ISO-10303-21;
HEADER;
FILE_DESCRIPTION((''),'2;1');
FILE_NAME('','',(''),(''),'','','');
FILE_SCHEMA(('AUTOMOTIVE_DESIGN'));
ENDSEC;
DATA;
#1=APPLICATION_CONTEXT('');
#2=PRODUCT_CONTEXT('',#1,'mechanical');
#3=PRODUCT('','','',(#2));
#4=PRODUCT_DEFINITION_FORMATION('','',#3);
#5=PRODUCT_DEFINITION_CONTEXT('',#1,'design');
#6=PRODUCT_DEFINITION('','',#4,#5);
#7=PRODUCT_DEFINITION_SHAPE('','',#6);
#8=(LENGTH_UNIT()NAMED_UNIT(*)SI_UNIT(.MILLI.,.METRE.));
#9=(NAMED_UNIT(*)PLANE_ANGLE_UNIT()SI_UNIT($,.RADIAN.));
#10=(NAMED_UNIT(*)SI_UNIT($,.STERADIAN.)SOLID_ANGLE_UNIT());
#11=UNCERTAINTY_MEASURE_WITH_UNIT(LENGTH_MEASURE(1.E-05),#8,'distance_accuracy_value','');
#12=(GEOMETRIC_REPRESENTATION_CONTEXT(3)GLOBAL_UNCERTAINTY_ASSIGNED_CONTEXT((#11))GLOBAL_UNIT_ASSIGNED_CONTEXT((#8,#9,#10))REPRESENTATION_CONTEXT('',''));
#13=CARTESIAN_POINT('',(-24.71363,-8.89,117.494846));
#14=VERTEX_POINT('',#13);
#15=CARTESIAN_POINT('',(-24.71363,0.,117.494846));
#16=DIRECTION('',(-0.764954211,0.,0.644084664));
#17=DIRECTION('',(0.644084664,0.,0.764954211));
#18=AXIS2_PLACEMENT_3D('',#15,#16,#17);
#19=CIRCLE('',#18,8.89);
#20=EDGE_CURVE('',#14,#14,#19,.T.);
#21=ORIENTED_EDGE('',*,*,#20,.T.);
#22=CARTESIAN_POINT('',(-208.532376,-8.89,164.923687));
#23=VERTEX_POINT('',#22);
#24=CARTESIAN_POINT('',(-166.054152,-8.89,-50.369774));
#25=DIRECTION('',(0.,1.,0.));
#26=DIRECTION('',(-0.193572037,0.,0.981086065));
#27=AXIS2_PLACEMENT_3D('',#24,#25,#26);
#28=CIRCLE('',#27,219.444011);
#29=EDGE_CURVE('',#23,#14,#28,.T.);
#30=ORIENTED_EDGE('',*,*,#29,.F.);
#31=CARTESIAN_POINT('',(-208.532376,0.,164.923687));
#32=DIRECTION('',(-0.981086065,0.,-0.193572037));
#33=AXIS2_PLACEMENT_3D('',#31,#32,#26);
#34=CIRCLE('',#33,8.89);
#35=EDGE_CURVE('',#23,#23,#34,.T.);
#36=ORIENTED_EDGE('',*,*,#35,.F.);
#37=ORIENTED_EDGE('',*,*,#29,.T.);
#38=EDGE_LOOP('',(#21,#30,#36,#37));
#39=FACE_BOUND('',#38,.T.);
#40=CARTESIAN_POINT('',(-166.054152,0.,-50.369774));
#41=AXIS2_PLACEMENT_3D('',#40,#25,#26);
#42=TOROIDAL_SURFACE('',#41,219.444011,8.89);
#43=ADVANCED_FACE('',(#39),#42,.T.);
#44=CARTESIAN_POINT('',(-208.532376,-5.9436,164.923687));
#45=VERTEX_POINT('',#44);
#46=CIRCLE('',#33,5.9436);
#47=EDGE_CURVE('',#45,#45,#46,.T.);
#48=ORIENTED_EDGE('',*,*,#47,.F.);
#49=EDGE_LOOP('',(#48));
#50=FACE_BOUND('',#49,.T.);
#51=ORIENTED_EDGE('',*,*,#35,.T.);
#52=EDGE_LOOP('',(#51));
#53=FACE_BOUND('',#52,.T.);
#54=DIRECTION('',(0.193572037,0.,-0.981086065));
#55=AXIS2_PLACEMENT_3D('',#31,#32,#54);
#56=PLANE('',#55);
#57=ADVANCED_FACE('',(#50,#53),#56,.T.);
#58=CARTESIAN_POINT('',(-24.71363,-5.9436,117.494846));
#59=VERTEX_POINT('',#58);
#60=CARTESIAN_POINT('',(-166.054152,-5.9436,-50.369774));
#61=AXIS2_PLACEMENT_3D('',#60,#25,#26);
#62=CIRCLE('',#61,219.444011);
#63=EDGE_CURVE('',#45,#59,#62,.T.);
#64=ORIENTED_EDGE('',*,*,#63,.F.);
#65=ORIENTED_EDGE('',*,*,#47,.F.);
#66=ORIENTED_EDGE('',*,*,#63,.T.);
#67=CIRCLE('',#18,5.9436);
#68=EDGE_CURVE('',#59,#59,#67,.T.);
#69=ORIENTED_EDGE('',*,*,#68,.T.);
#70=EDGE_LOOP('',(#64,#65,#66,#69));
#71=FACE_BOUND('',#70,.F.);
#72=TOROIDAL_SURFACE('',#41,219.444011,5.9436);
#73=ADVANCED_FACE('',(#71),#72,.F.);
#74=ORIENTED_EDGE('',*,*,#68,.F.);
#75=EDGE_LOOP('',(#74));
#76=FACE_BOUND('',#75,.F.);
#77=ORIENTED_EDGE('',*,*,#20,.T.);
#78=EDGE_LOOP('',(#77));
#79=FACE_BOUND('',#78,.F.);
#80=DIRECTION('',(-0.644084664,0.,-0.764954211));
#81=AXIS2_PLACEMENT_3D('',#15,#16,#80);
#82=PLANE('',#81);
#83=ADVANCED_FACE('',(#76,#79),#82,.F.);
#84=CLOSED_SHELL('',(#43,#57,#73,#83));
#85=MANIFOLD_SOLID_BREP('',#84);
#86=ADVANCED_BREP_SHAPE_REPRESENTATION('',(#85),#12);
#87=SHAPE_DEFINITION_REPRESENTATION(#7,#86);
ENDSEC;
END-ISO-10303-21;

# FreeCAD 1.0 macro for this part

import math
import FreeCAD as App
import Part
import Sketcher

V = App.Vector
Q = App.Units.Quantity

doc = App.newDocument("Part")
params = doc.addObject("Spreadsheet::Sheet", "Params")
for row, (alias, value) in enumerate([
    ("sketch1_diameter", "0.7 in"),
    ("sketch1_diameter2", "0.468 in"),
], start=1):
    params.set(f"A{row}", alias)
    params.set(f"B{row}", "=" + value)
    params.setAlias(f"B{row}", alias)

body = doc.addObject("PartDesign::Body", "Body")

sketch1 = body.newObject("Sketcher::SketchObject", "Sketch")
sketch1.Placement = App.Placement(V(-169.397843, 0, -33.422845), App.Rotation(V(0, -1, 0), V(-0.193572014, 0, 0.981086069), V(-0.981086069, 0, -0.193572014), "ZXY"))
sketch1.addGeometry([
    Part.Circle(V(0, 202.17037, 0), V(0, 0, 1), 8.89),
    Part.Circle(V(0, 202.17037, 0), V(0, 0, 1), 5.9436),
], False)
sketch1.addConstraint([
    Sketcher.Constraint("Coincident", 1, 3, 0, 3),
    Sketcher.Constraint("PointOnObject", 0, 3, -2),
    Sketcher.Constraint("Diameter", 0, Q("0.7 in")),
    Sketcher.Constraint("Diameter", 1, Q("0.468 in")),
    Sketcher.Constraint("DistanceY", -1, 1, 0, 3, 202.17037),
])
sketch1.setExpression("Constraints[2]", "Params.sketch1_diameter")
sketch1.setExpression("Constraints[3]", "Params.sketch1_diameter2")

sketch2 = body.newObject("Sketcher::SketchObject", "Sketch001")
sketch2.AttachmentSupport = (doc.getObject("XZ_Plane"), [""])
sketch2.MapMode = "FlatFace"
sketch2.addGeometry(Part.ArcOfCircle(Part.Circle(V(-166.054152, -50.369774, 0), V(0, 0, 1), 219.444012), math.radians(49.902919), math.radians(101.161318)), False)
sketch2.addConstraint([
    Sketcher.Constraint("Radius", 0, 219.444012),
    Sketcher.Constraint("DistanceX", 0, 3, -1, 1, 166.054152),
    Sketcher.Constraint("DistanceX", 0, 1, -1, 1, 24.713629),
    Sketcher.Constraint("DistanceY", -1, 1, 0, 2, 164.923688),
    Sketcher.Constraint("DistanceY", 0, 1, 0, 2, 47.428841),
])
doc.recompute()

additivepipe = body.newObject("PartDesign::AdditivePipe", "AdditivePipe")
additivepipe.Profile = sketch1
additivepipe.Spine = (sketch2, ["Edge1"])

doc.recompute()
